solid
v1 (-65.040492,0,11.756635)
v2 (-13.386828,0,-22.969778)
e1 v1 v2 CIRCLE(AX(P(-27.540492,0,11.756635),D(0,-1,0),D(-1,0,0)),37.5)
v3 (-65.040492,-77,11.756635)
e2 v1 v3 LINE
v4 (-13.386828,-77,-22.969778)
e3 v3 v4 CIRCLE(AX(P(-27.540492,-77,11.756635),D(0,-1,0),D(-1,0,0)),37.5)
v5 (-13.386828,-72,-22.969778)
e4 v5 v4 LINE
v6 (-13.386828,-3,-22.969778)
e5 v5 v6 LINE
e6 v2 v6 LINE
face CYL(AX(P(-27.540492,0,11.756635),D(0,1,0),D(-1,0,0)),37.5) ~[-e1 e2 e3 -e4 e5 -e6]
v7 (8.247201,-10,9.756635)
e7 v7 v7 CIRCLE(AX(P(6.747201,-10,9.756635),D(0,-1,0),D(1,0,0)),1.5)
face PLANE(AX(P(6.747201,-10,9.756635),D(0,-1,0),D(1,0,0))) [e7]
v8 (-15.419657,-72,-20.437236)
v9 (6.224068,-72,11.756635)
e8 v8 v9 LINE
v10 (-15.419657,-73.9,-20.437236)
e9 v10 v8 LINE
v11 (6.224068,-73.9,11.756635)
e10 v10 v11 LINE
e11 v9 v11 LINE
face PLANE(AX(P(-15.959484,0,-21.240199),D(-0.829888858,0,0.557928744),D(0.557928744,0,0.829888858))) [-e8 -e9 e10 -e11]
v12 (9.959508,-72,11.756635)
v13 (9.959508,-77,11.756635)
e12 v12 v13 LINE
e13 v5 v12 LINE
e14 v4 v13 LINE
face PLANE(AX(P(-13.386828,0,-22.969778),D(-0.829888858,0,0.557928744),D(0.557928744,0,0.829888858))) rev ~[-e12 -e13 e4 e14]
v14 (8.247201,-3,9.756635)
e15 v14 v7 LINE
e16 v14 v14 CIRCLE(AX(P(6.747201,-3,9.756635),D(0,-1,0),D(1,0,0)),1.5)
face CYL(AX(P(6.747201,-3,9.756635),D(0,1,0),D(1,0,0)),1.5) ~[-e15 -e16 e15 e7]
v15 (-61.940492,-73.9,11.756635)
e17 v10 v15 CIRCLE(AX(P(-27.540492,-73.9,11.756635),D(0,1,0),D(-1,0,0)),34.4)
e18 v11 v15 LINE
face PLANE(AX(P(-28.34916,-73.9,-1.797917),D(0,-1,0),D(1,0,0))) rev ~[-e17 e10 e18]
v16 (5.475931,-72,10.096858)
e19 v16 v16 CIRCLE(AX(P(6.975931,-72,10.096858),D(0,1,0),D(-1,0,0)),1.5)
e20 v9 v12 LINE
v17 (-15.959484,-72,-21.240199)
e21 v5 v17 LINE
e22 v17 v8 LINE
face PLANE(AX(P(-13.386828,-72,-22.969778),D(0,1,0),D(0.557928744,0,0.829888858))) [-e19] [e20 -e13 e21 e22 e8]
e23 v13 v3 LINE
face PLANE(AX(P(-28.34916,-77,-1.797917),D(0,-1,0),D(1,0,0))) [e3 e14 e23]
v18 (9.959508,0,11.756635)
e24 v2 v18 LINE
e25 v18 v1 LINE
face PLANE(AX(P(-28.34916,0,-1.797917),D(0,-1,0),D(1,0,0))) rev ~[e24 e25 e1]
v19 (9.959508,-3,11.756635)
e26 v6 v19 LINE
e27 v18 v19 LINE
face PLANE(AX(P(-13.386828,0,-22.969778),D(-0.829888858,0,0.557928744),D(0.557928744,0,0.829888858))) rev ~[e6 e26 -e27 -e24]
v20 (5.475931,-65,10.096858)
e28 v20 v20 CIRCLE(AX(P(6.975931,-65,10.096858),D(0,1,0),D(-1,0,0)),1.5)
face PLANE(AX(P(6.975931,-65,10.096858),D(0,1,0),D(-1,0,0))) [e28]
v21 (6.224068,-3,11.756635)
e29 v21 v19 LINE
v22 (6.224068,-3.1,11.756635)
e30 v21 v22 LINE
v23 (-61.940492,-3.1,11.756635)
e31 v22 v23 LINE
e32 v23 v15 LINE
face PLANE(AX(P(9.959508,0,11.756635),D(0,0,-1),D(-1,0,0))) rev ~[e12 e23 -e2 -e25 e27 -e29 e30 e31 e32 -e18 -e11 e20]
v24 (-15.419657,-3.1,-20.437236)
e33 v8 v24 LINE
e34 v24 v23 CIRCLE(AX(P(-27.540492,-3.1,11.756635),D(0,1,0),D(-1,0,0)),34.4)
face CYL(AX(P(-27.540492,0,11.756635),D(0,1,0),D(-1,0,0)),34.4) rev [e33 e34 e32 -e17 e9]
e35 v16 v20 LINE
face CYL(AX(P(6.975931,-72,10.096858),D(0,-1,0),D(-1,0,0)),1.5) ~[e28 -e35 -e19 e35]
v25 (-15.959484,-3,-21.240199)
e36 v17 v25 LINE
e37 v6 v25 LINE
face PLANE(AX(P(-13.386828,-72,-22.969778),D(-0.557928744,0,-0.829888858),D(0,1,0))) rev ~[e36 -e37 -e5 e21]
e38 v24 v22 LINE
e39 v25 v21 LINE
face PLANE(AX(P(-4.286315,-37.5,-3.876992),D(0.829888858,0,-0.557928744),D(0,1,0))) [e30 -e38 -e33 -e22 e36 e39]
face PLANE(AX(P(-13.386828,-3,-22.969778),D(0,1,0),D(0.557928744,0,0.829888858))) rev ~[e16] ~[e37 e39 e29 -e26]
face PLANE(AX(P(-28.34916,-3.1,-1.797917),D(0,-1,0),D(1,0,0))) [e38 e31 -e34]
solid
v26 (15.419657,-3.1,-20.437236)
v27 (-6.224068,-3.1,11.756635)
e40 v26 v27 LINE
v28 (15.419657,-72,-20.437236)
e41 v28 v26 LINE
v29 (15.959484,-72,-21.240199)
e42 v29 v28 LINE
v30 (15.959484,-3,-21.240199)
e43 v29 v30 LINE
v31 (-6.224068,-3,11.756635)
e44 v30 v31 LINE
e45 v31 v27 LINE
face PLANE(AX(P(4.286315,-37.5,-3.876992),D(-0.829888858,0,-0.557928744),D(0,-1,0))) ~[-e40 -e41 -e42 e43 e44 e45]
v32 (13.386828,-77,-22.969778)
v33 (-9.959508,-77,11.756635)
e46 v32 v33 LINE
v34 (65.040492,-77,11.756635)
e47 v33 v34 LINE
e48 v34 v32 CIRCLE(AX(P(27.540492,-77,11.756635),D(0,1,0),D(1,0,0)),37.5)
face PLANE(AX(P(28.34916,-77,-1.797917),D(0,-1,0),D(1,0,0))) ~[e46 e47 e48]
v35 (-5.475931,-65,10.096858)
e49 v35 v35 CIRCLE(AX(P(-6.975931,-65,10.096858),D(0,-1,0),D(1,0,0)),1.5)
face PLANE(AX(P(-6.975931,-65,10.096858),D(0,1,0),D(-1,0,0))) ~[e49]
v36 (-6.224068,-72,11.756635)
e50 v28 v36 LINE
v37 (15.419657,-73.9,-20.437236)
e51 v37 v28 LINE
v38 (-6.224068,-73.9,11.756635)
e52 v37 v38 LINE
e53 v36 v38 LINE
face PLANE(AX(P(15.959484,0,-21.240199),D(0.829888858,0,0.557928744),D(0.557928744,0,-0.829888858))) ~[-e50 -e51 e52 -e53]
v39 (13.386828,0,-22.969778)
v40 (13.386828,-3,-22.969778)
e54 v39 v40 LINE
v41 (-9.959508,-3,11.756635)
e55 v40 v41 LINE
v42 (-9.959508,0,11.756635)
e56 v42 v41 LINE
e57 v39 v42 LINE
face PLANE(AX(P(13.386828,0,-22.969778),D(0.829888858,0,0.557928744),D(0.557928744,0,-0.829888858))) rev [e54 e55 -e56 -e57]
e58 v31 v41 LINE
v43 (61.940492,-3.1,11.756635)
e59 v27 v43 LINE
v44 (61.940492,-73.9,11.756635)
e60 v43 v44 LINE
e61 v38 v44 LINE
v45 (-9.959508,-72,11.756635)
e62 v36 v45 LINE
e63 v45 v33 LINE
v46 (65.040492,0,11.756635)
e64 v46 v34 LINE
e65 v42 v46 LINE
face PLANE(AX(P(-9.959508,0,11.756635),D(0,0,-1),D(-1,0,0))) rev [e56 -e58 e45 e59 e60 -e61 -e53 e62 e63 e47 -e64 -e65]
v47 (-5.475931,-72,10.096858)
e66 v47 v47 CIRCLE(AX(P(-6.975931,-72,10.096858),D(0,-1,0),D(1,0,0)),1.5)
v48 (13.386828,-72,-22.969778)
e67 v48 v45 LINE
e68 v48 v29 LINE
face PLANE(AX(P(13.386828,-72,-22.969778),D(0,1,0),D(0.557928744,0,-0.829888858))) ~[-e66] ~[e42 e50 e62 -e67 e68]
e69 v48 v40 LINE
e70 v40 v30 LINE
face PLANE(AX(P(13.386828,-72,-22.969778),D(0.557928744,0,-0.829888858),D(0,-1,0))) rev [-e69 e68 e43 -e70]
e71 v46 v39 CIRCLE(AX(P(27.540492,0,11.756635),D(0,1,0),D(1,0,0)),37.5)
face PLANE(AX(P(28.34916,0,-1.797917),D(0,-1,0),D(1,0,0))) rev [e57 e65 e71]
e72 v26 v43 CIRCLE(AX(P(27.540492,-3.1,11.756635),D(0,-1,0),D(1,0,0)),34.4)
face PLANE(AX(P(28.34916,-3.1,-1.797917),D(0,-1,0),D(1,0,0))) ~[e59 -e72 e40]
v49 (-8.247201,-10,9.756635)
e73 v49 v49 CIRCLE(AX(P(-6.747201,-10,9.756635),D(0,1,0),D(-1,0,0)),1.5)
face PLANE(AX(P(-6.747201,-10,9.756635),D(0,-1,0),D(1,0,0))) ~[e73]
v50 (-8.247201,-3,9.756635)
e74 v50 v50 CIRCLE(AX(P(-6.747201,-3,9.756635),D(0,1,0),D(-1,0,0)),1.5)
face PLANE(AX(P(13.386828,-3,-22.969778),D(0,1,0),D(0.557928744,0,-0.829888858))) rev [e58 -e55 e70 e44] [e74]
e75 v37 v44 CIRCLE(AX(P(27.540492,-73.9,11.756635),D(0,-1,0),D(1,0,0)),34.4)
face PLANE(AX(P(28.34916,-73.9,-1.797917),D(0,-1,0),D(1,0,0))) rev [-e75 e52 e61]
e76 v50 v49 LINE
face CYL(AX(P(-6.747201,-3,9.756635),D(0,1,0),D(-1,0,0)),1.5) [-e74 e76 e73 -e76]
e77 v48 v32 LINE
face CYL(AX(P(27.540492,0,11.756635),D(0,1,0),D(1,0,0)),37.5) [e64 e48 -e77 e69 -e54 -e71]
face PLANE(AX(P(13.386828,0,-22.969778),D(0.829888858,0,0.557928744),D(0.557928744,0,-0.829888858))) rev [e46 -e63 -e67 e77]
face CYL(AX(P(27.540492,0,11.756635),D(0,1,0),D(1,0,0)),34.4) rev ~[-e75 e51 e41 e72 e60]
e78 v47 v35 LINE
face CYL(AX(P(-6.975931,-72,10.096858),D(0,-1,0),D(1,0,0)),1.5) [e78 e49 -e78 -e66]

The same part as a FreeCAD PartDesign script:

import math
import FreeCAD as App
import Part
import Sketcher
from FreeCAD import Vector


def faces_at(feature, points):
    """Names of the faces that lie closest to the given points."""
    faces = feature.Shape.Faces
    near = lambda p: min(range(len(faces)), key=lambda i: faces[i].distToShape(Part.Vertex(*p))[0])
    return sorted({f"Face{near(p) + 1}" for p in points})

doc = App.newDocument("Part")
params = doc.addObject("Spreadsheet::Sheet", "Params")
for row, (alias, value) in enumerate([
    ("sketch1_radius", "37.5 mm"),
    ("sketch1_width", "75 mm"),
    ("pad1_length", "77 mm"),
    ("thickness_wall", "3.1 mm"),
    ("sketch2_width", "69 mm"),
    ("pocket1_length", "3.1 mm"),
    ("sketch3_diameter", "3 mm"),
    ("pad2_length", "7 mm"),
    ("sketch4_diameter", "3 mm"),
    ("pad3_length", "7 mm"),
], start=1):
    params.set(f"A{row}", alias)
    params.set(f"B{row}", "=" + value)
    params.setAlias(f"B{row}", alias)

body = doc.addObject("PartDesign::Body", "Body")

sketch1 = body.newObject("Sketcher::SketchObject", "Sketch")
sketch1.AttachmentSupport = (doc.getObject("XZ_Plane"), [""])
sketch1.MapMode = "FlatFace"
sketch1.addGeometry(Part.ArcOfCircle(Part.Circle(Vector(-28, 12, 0), Vector(0, 0, 1), 38), math.radians(180), math.radians(292)), False)
sketch1.addGeometry(Part.LineSegment(Vector(-13, -23, 0), Vector(10, 12, 0)), False)
sketch1.addGeometry(Part.LineSegment(Vector(10, 12, 0), Vector(-65, 12, 0)), False)
sketch1.addConstraint(Sketcher.Constraint("Coincident", 0, 2, 1, 1))
sketch1.addConstraint(Sketcher.Constraint("Coincident", 1, 2, 2, 1))
sketch1.addConstraint(Sketcher.Constraint("Coincident", 2, 2, 0, 1))
sketch1.addConstraint(Sketcher.Constraint("Horizontal", 2))
sketch1.addConstraint(Sketcher.Constraint("Horizontal", 0, 3, 1, 2))
sketch1.addConstraint(Sketcher.Constraint("Radius", 0, 37.5))
sketch1.addConstraint(Sketcher.Constraint("DistanceX", 2, 2, 2, 1, 75.0))
sketch1.addConstraint(Sketcher.Constraint("DistanceX", 0, 3, -1, 1, 27.540492))
sketch1.addConstraint(Sketcher.Constraint("DistanceX", 0, 2, -1, 1, 13.386828))
sketch1.addConstraint(Sketcher.Constraint("DistanceY", 0, 2, -1, 1, 22.969778))
sketch1.setExpression("Constraints[5]", "Params.sketch1_radius")
sketch1.setExpression("Constraints[6]", "Params.sketch1_width")
pad1 = body.newObject("PartDesign::Pad", "Pad")
pad1.Profile = sketch1
pad1.setExpression("Length", "Params.pad1_length")
doc.recompute()

thickness = body.newObject("PartDesign::Thickness", "Thickness")
thickness.Base = (pad1, faces_at(pad1, [(-27.54, -38.5, 11.757)]))
thickness.setExpression("Value", "Params.thickness_wall")
thickness.Reversed = True
thickness.Join = "Arc"

sketch2 = body.newObject("Sketcher::SketchObject", "Sketch001")
sketch2.Placement = App.Placement(Vector(1.415724, 0, -0.951782), App.Rotation(Vector(0, 1, 0), Vector(0.557928744, 0, 0.829888858), Vector(0.829888858, 0, -0.557928744), "ZXY"))
sketch2.addGeometry(Part.LineSegment(Vector(-72, 15, 0), Vector(-72, -27, 0)), False)
sketch2.addGeometry(Part.LineSegment(Vector(-72, -27, 0), Vector(-3, -27, 0)), False)
sketch2.addGeometry(Part.LineSegment(Vector(-3, -27, 0), Vector(-3, 15, 0)), False)
sketch2.addGeometry(Part.LineSegment(Vector(-3, 15, 0), Vector(-72, 15, 0)), False)
sketch2.addConstraint(Sketcher.Constraint("Coincident", 0, 2, 1, 1))
sketch2.addConstraint(Sketcher.Constraint("Coincident", 1, 2, 2, 1))
sketch2.addConstraint(Sketcher.Constraint("Coincident", 2, 2, 3, 1))
sketch2.addConstraint(Sketcher.Constraint("Coincident", 3, 2, 0, 1))
sketch2.addConstraint(Sketcher.Constraint("Vertical", 0))
sketch2.addConstraint(Sketcher.Constraint("Horizontal", 1))
sketch2.addConstraint(Sketcher.Constraint("Vertical", 2))
sketch2.addConstraint(Sketcher.Constraint("Horizontal", 3))
sketch2.addConstraint(Sketcher.Constraint("DistanceX", 1, 1, 1, 2, 69.0))
sketch2.addConstraint(Sketcher.Constraint("DistanceX", 0, 2, -1, 1, 72.0))
sketch2.addConstraint(Sketcher.Constraint("DistanceY", 0, 2, 0, 1, 41.844656))
sketch2.addConstraint(Sketcher.Constraint("DistanceY", 0, 2, -1, 1, 26.531259))
sketch2.setExpression("Constraints[8]", "Params.sketch2_width")
pocket1 = body.newObject("PartDesign::Pocket", "Pocket")
pocket1.Profile = sketch2
pocket1.setExpression("Length", "Params.pocket1_length")

sketch3 = body.newObject("Sketcher::SketchObject", "Sketch002")
sketch3.AttachmentSupport = (doc.getObject("XZ_Plane"), [""])
sketch3.MapMode = "FlatFace"
sketch3.AttachmentOffset = App.Placement(Vector(0, 0, 3), App.Rotation())
sketch3.addGeometry(Part.Circle(Vector(6.7, 9.8, 0), Vector(0, 0, 1), 1.5), False)
sketch3.addConstraint(Sketcher.Constraint("Diameter", 0, 3.0))
sketch3.addConstraint(Sketcher.Constraint("DistanceX", -1, 1, 0, 3, 6.747201))
sketch3.addConstraint(Sketcher.Constraint("DistanceY", -1, 1, 0, 3, 9.756635))
sketch3.setExpression("Constraints[0]", "Params.sketch3_diameter")
pad2 = body.newObject("PartDesign::Pad", "Pad001")
pad2.Profile = sketch3
pad2.setExpression("Length", "Params.pad2_length")

sketch4 = body.newObject("Sketcher::SketchObject", "Sketch003")
sketch4.AttachmentSupport = (doc.getObject("XZ_Plane"), [""])
sketch4.MapMode = "FlatFace"
sketch4.AttachmentOffset = App.Placement(Vector(0, 0, 72), App.Rotation())
sketch4.addGeometry(Part.Circle(Vector(7, 10.1, 0), Vector(0, 0, 1), 1.5), False)
sketch4.addConstraint(Sketcher.Constraint("Diameter", 0, 3.0))
sketch4.addConstraint(Sketcher.Constraint("DistanceX", -1, 1, 0, 3, 6.975931))
sketch4.addConstraint(Sketcher.Constraint("DistanceY", -1, 1, 0, 3, 10.096858))
sketch4.setExpression("Constraints[0]", "Params.sketch4_diameter")
pad3 = body.newObject("PartDesign::Pad", "Pad002")
pad3.Profile = sketch4
pad3.setExpression("Length", "Params.pad3_length")
pad3.Reversed = True
body2 = doc.addObject("PartDesign::Body", "Body001")
doc.recompute()

mirroring = doc.addObject("Part::Mirroring", "Mirroring")
mirroring.Source = body
mirroring.Base = Vector(0, 0, 0)
mirroring.Normal = Vector(1, 0, 0)
body2.BaseFeature = mirroring
doc.recompute()
mirroring.Visibility = False

doc.recompute()
